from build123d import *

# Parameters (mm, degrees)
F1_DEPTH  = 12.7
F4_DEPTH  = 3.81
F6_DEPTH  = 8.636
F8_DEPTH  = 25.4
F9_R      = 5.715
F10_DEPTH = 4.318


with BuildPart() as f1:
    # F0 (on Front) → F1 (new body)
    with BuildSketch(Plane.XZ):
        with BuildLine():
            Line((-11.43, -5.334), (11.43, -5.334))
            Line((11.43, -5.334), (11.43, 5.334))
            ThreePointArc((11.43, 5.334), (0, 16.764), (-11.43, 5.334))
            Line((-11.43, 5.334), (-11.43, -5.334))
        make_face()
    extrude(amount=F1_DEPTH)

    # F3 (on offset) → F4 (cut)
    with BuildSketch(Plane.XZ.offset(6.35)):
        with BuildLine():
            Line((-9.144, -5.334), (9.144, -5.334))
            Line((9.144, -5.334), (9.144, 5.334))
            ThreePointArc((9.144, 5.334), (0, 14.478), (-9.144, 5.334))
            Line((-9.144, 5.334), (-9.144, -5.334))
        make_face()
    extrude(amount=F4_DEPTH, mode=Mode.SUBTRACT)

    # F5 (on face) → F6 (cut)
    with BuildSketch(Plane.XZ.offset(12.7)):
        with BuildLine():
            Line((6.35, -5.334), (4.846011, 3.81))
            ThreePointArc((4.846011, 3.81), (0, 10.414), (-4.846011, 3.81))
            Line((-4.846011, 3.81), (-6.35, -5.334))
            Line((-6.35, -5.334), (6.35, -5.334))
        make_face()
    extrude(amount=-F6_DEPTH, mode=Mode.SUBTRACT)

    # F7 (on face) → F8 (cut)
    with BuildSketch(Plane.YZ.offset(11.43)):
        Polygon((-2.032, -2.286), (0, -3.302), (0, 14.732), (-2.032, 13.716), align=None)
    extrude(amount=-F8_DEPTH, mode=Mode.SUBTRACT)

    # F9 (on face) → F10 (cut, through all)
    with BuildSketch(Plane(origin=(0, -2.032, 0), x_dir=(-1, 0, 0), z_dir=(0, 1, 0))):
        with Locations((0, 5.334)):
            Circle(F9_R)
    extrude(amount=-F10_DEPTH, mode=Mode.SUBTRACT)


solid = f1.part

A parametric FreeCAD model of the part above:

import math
import FreeCAD as App
import Part
import Sketcher
Q = App.Units.Quantity

doc = App.newDocument("Part")
body = doc.addObject("PartDesign::Body", "Body")

# Sketch on XZ plane
sketch1 = body.newObject("Sketcher::SketchObject", "Sketch")
sketch1.AttachmentSupport = (doc.getObject("XZ_Plane"), [""])
sketch1.MapMode = "FlatFace"
sketch1.addGeometry([
    Part.LineSegment(App.Vector(-11, -5, 0), App.Vector(11, -5, 0)),
    Part.LineSegment(App.Vector(11, -5, 0), App.Vector(11, 5, 0)),
    Part.ArcOfCircle(Part.Circle(App.Vector(0, 5, 0), App.Vector(0, 0, 1), 11), math.radians(0), math.radians(180)),
    Part.LineSegment(App.Vector(-11, 5, 0), App.Vector(-11, -5, 0)),
], False)
sketch1.addConstraint([
    Sketcher.Constraint("Coincident", 0, 2, 1, 1),
    Sketcher.Constraint("Tangent", 1, 2, 2, 1),
    Sketcher.Constraint("Tangent", 2, 2, 3, 1),
    Sketcher.Constraint("Coincident", 3, 2, 0, 1),
    Sketcher.Constraint("Horizontal", 0),
    Sketcher.Constraint("Vertical", 1),
    Sketcher.Constraint("Vertical", 3),
    Sketcher.Constraint("Symmetric", 0, 2, 2, 2, -1, 1),
    Sketcher.Constraint("Radius", 2, Q("0.45 in")),
    Sketcher.Constraint("DistanceY", 1, 1, 1, 2, Q("0.42 in")),
])
pad1 = body.newObject("PartDesign::Pad", "Pad")
pad1.Profile = sketch1
pad1.Length = Q("0.5 in")

# Sketch on XZ plane
sketch2 = body.newObject("Sketcher::SketchObject", "Sketch001")
sketch2.AttachmentSupport = (doc.getObject("XZ_Plane"), [""])
sketch2.MapMode = "FlatFace"
sketch2.AttachmentOffset = App.Placement(App.Vector(0, 0, 0.25 * 25.4), App.Rotation())
sketch2.addGeometry([
    Part.LineSegment(App.Vector(-9, -5, 0), App.Vector(9, -5, 0)),
    Part.LineSegment(App.Vector(9, -5, 0), App.Vector(9, 5, 0)),
    Part.ArcOfCircle(Part.Circle(App.Vector(0, 5, 0), App.Vector(0, 0, 1), 9), math.radians(0), math.radians(180)),
    Part.LineSegment(App.Vector(-9, 5, 0), App.Vector(-9, -5, 0)),
], False)
sketch2.addConstraint([
    Sketcher.Constraint("Coincident", 0, 2, 1, 1),
    Sketcher.Constraint("Tangent", 1, 2, 2, 1),
    Sketcher.Constraint("Tangent", 2, 2, 3, 1),
    Sketcher.Constraint("Coincident", 3, 2, 0, 1),
    Sketcher.Constraint("Horizontal", 0),
    Sketcher.Constraint("Vertical", 1),
    Sketcher.Constraint("Vertical", 3),
    Sketcher.Constraint("Symmetric", 0, 2, 2, 2, -1, 1),
    Sketcher.Constraint("Radius", 2, Q("0.36 in")),
    Sketcher.Constraint("DistanceY", 1, 1, 1, 2, Q("0.42 in")),
])
pocket1 = body.newObject("PartDesign::Pocket", "Pocket")
pocket1.Profile = sketch2
pocket1.Length = Q("0.15 in")
pocket1.Reversed = True

# Sketch on XZ plane
sketch3 = body.newObject("Sketcher::SketchObject", "Sketch002")
sketch3.AttachmentSupport = (doc.getObject("XZ_Plane"), [""])
sketch3.MapMode = "FlatFace"
sketch3.AttachmentOffset = App.Placement(App.Vector(0, 0, 0.5 * 25.4), App.Rotation())
sketch3.addGeometry([
    Part.LineSegment(App.Vector(6, -5, 0), App.Vector(5, 4, 0)),
    Part.ArcOfCircle(Part.Circle(App.Vector(0, 5, 0), App.Vector(0, 0, 1), 5), math.radians(-17), math.radians(197)),
    Part.LineSegment(App.Vector(-5, 4, 0), App.Vector(-6, -5, 0)),
    Part.LineSegment(App.Vector(-6, -5, 0), App.Vector(6, -5, 0)),
], False)
sketch3.addConstraint([
    Sketcher.Constraint("Coincident", 0, 2, 1, 1),
    Sketcher.Constraint("Coincident", 1, 2, 2, 1),
    Sketcher.Constraint("Coincident", 2, 2, 3, 1),
    Sketcher.Constraint("Coincident", 3, 2, 0, 1),
    Sketcher.Constraint("Horizontal", 3),
    Sketcher.Constraint("Symmetric", 0, 2, 1, 2, -2),
    Sketcher.Constraint("Equal", 0, 2),
    Sketcher.Constraint("Radius", 1, Q("0.2 in")),
    Sketcher.Constraint("DistanceX", 3, 1, 3, 2, Q("0.5 in")),
    Sketcher.Constraint("DistanceY", -1, 1, 1, 3, Q("0.21 in")),
    Sketcher.Constraint("DistanceY", -1, 1, 0, 2, Q("0.15 in")),
    Sketcher.Constraint("DistanceY", 2, 2, -1, 1, Q("0.21 in")),
])
pocket2 = body.newObject("PartDesign::Pocket", "Pocket001")
pocket2.Profile = sketch3
pocket2.Length = Q("0.34 in")

# Sketch on YZ plane
sketch4 = body.newObject("Sketcher::SketchObject", "Sketch003")
sketch4.AttachmentSupport = (doc.getObject("YZ_Plane"), [""])
sketch4.MapMode = "FlatFace"
sketch4.AttachmentOffset = App.Placement(App.Vector(0, 0, 0.45 * 25.4), App.Rotation())
sketch4.addGeometry([
    Part.LineSegment(App.Vector(-2, -2.3, 0), App.Vector(0, -3.3, 0)),
    Part.LineSegment(App.Vector(0, -3.3, 0), App.Vector(0, 14.7, 0)),
    Part.LineSegment(App.Vector(0, 14.7, 0), App.Vector(-2, 13.7, 0)),
    Part.LineSegment(App.Vector(-2, 13.7, 0), App.Vector(-2, -2.3, 0)),
], False)
sketch4.addConstraint([
    Sketcher.Constraint("Coincident", 0, 2, 1, 1),
    Sketcher.Constraint("Coincident", 1, 2, 2, 1),
    Sketcher.Constraint("Coincident", 2, 2, 3, 1),
    Sketcher.Constraint("Coincident", 3, 2, 0, 1),
    Sketcher.Constraint("Vertical", 1),
    Sketcher.Constraint("Vertical", 3),
    Sketcher.Constraint("PointOnObject", 0, 2, -2),
    Sketcher.Constraint("Equal", 0, 2),
    Sketcher.Constraint("DistanceY", 1, 1, 1, 2, Q("0.71 in")),
    Sketcher.Constraint("DistanceY", 3, 2, 3, 1, Q("0.63 in")),
    Sketcher.Constraint("DistanceY", 0, 2, -1, 1, Q("0.13 in")),
    Sketcher.Constraint("DistanceX", 2, 2, -1, 1, Q("0.08 in")),
])
pocket3 = body.newObject("PartDesign::Pocket", "Pocket002")
pocket3.Profile = sketch4
pocket3.Length = Q("1 in")

# Sketch on XZ plane
sketch5 = body.newObject("Sketcher::SketchObject", "Sketch004")
sketch5.AttachmentSupport = (doc.getObject("XZ_Plane"), [""])
sketch5.MapMode = "FlatFace"
sketch5.AttachmentOffset = App.Placement(App.Vector(0, 0, 0.08 * 25.4), App.Rotation())
sketch5.addGeometry(Part.Circle(App.Vector(0, 5, 0), App.Vector(0, 0, 1), 6), False)
sketch5.addConstraint([
    Sketcher.Constraint("PointOnObject", 0, 3, -2),
    Sketcher.Constraint("Diameter", 0, Q("0.45 in")),
    Sketcher.Constraint("DistanceY", -1, 1, 0, 3, Q("0.21 in")),
])
pocket4 = body.newObject("PartDesign::Pocket", "Pocket003")
pocket4.Profile = sketch5
pocket4.Length = Q("0.17 in")
pocket4.Reversed = True

doc.recompute()
